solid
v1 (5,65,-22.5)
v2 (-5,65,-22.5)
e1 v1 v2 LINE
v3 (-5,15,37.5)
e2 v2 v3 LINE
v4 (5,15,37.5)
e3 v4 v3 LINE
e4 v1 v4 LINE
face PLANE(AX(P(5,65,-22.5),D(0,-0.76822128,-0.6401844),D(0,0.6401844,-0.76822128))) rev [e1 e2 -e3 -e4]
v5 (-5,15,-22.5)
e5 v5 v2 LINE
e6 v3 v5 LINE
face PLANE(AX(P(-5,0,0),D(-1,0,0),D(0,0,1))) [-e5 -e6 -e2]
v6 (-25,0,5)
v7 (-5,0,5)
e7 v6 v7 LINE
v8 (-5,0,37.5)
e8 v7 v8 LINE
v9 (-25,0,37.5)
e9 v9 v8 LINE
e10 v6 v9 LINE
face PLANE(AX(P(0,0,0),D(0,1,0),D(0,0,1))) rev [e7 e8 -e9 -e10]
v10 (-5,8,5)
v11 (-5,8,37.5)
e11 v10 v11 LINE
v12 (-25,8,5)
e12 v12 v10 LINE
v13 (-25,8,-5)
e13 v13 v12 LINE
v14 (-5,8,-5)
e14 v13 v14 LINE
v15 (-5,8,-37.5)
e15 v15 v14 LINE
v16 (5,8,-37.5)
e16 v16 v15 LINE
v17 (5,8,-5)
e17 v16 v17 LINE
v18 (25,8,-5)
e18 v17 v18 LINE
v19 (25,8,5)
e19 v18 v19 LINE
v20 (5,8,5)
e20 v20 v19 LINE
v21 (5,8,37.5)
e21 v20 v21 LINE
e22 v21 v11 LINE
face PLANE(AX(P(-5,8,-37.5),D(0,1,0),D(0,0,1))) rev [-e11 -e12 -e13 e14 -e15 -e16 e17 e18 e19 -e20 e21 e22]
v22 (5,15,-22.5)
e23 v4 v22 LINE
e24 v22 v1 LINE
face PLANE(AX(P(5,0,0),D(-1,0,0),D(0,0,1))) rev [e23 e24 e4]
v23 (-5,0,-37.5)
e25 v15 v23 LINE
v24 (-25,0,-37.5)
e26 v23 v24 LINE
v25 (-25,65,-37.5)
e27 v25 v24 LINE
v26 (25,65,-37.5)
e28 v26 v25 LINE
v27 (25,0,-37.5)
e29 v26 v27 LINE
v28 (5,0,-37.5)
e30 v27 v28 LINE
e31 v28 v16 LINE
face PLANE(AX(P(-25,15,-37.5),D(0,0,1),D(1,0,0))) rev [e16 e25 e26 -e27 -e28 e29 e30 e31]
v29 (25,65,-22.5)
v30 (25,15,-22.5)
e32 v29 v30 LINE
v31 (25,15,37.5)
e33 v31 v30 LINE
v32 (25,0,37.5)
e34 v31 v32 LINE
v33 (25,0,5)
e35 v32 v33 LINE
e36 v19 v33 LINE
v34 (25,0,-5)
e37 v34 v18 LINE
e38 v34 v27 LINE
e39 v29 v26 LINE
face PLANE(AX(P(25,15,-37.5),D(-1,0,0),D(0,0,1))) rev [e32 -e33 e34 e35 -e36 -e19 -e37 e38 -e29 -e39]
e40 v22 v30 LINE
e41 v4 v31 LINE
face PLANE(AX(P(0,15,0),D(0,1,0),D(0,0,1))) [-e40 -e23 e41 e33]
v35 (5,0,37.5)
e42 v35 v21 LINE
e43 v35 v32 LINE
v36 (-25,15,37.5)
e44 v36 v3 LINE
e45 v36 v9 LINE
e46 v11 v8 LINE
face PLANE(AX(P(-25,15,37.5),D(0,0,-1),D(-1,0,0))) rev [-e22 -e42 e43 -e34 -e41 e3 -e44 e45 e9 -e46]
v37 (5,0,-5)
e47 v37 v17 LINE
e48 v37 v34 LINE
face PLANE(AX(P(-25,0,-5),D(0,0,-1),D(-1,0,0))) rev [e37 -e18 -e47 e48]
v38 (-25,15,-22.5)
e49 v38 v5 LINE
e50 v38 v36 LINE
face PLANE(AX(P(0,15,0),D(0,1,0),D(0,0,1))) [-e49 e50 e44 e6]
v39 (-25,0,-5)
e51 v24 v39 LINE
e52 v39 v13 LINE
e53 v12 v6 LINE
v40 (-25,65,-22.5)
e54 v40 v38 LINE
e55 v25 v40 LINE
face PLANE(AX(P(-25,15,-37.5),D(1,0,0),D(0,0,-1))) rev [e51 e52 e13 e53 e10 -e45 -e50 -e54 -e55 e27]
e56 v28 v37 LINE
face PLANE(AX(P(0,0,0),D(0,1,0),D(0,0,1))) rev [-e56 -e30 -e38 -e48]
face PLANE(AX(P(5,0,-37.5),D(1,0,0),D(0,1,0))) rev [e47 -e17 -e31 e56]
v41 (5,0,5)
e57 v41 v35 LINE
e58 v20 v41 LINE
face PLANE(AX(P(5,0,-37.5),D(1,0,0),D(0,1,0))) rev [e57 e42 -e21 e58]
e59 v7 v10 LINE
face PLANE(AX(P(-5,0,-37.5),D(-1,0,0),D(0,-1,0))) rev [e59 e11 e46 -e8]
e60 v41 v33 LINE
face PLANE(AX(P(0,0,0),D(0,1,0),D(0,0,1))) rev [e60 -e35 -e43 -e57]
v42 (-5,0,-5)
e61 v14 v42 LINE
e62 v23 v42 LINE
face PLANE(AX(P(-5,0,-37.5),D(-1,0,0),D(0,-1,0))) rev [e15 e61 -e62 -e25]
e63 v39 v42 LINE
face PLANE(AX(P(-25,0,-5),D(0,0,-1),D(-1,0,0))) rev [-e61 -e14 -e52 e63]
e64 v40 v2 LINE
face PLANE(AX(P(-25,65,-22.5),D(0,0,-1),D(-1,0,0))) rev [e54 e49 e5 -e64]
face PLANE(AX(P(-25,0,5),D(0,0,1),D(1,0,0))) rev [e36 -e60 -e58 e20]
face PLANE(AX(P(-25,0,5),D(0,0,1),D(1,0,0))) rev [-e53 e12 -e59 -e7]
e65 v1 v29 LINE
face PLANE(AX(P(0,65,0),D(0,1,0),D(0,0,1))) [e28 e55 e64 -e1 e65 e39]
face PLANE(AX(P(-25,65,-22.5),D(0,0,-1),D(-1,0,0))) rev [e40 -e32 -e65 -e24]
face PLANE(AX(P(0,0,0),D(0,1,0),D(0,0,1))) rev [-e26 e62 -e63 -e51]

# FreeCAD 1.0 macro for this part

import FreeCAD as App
import Part
import Sketcher

doc = App.newDocument("Part")
body = doc.addObject("PartDesign::Body", "Body")

# Sketch on XZ plane
sketch1 = body.newObject("Sketcher::SketchObject", "Sketch")
sketch1.AttachmentSupport = (doc.getObject("XZ_Plane"), [""])
sketch1.MapMode = "FlatFace"
sketch1.addGeometry(Part.LineSegment(App.Vector(-25, -38, 0), App.Vector(-25, 38, 0)), False)
sketch1.addGeometry(Part.LineSegment(App.Vector(-25, 38, 0), App.Vector(25, 38, 0)), False)
sketch1.addGeometry(Part.LineSegment(App.Vector(25, 38, 0), App.Vector(25, -38, 0)), False)
sketch1.addGeometry(Part.LineSegment(App.Vector(25, -38, 0), App.Vector(-25, -38, 0)), False)
sketch1.addConstraint(Sketcher.Constraint("Coincident", 0, 2, 1, 1))
sketch1.addConstraint(Sketcher.Constraint("Coincident", 1, 2, 2, 1))
sketch1.addConstraint(Sketcher.Constraint("Coincident", 2, 2, 3, 1))
sketch1.addConstraint(Sketcher.Constraint("Coincident", 3, 2, 0, 1))
sketch1.addConstraint(Sketcher.Constraint("Vertical", 0))
sketch1.addConstraint(Sketcher.Constraint("Horizontal", 1))
sketch1.addConstraint(Sketcher.Constraint("Vertical", 2))
sketch1.addConstraint(Sketcher.Constraint("Horizontal", 3))
sketch1.addConstraint(Sketcher.Constraint("Symmetric", 0, 2, 2, 2, -1, 1))
sketch1.addConstraint(Sketcher.Constraint("DistanceX", 1, 1, 1, 2, 50.0))
sketch1.addConstraint(Sketcher.Constraint("DistanceY", 0, 1, 0, 2, 75.0))
pad1 = body.newObject("PartDesign::Pad", "Pad")
pad1.Profile = sketch1
pad1.Length = 15
pad1.Reversed = True

# Sketch on XZ plane
sketch2 = body.newObject("Sketcher::SketchObject", "Sketch001")
sketch2.AttachmentSupport = (doc.getObject("XZ_Plane"), [""])
sketch2.MapMode = "FlatFace"
sketch2.AttachmentOffset = App.Placement(App.Vector(0, 0, -15), App.Rotation())
sketch2.addGeometry(Part.LineSegment(App.Vector(-25, -38, 0), App.Vector(-25, -22, 0)), False)
sketch2.addGeometry(Part.LineSegment(App.Vector(-25, -22, 0), App.Vector(25, -22, 0)), False)
sketch2.addGeometry(Part.LineSegment(App.Vector(25, -22, 0), App.Vector(25, -38, 0)), False)
sketch2.addGeometry(Part.LineSegment(App.Vector(25, -38, 0), App.Vector(-25, -38, 0)), False)
sketch2.addConstraint(Sketcher.Constraint("Coincident", 0, 2, 1, 1))
sketch2.addConstraint(Sketcher.Constraint("Coincident", 1, 2, 2, 1))
sketch2.addConstraint(Sketcher.Constraint("Coincident", 2, 2, 3, 1))
sketch2.addConstraint(Sketcher.Constraint("Coincident", 3, 2, 0, 1))
sketch2.addConstraint(Sketcher.Constraint("Vertical", 0))
sketch2.addConstraint(Sketcher.Constraint("Horizontal", 1))
sketch2.addConstraint(Sketcher.Constraint("Vertical", 2))
sketch2.addConstraint(Sketcher.Constraint("Horizontal", 3))
sketch2.addConstraint(Sketcher.Constraint("DistanceX", 1, 1, 1, 2, 50.0))
sketch2.addConstraint(Sketcher.Constraint("DistanceY", 0, 1, 0, 2, 15.0))
sketch2.addConstraint(Sketcher.Constraint("DistanceX", 0, 2, -1, 1, 25.0))
sketch2.addConstraint(Sketcher.Constraint("DistanceY", 0, 2, -1, 1, 22.5))
pad2 = body.newObject("PartDesign::Pad", "Pad001")
pad2.Profile = sketch2
pad2.Length = 50
pad2.Reversed = True

# Sketch on YZ plane
sketch3 = body.newObject("Sketcher::SketchObject", "Sketch002")
sketch3.AttachmentSupport = (doc.getObject("YZ_Plane"), [""])
sketch3.MapMode = "FlatFace"
sketch3.addGeometry(Part.LineSegment(App.Vector(65, -22, 0), App.Vector(15, 38, 0)), False)
sketch3.addGeometry(Part.LineSegment(App.Vector(15, 38, 0), App.Vector(15, -22, 0)), False)
sketch3.addGeometry(Part.LineSegment(App.Vector(15, -22, 0), App.Vector(65, -22, 0)), False)
sketch3.addConstraint(Sketcher.Constraint("Coincident", 0, 2, 1, 1))
sketch3.addConstraint(Sketcher.Constraint("Coincident", 1, 2, 2, 1))
sketch3.addConstraint(Sketcher.Constraint("Coincident", 2, 2, 0, 1))
sketch3.addConstraint(Sketcher.Constraint("Vertical", 1))
sketch3.addConstraint(Sketcher.Constraint("Horizontal", 2))
sketch3.addConstraint(Sketcher.Constraint("DistanceX", 2, 1, 2, 2, 50.0))
sketch3.addConstraint(Sketcher.Constraint("DistanceY", 1, 2, 1, 1, 60.0))
sketch3.addConstraint(Sketcher.Constraint("DistanceX", -1, 1, 0, 2, 15.0))
sketch3.addConstraint(Sketcher.Constraint("DistanceY", -1, 1, 0, 2, 37.5))
pad3 = body.newObject("PartDesign::Pad", "Pad002")
pad3.Profile = sketch3
pad3.Length = 10
pad3.Midplane = True

# Sketch on XY plane
sketch4 = body.newObject("Sketcher::SketchObject", "Sketch003")
sketch4.AttachmentSupport = (doc.getObject("XY_Plane"), [""])
sketch4.MapMode = "FlatFace"
sketch4.AttachmentOffset = App.Placement(App.Vector(0, 0, 37.5), App.Rotation())
sketch4.addGeometry(Part.LineSegment(App.Vector(-5, 8, 0), App.Vector(-5, 0, 0)), False)
sketch4.addGeometry(Part.LineSegment(App.Vector(-5, 0, 0), App.Vector(5, 0, 0)), False)
sketch4.addGeometry(Part.LineSegment(App.Vector(5, 0, 0), App.Vector(5, 8, 0)), False)
sketch4.addGeometry(Part.LineSegment(App.Vector(5, 8, 0), App.Vector(-5, 8, 0)), False)
sketch4.addConstraint(Sketcher.Constraint("Coincident", 0, 2, 1, 1))
sketch4.addConstraint(Sketcher.Constraint("Coincident", 1, 2, 2, 1))
sketch4.addConstraint(Sketcher.Constraint("Coincident", 2, 2, 3, 1))
sketch4.addConstraint(Sketcher.Constraint("Coincident", 3, 2, 0, 1))
sketch4.addConstraint(Sketcher.Constraint("Vertical", 0))
sketch4.addConstraint(Sketcher.Constraint("Horizontal", 1))
sketch4.addConstraint(Sketcher.Constraint("Vertical", 2))
sketch4.addConstraint(Sketcher.Constraint("Horizontal", 3))
sketch4.addConstraint(Sketcher.Constraint("Symmetric", 0, 2, 1, 2, -1, 1))
sketch4.addConstraint(Sketcher.Constraint("DistanceX", 1, 1, 1, 2, 10.0))
sketch4.addConstraint(Sketcher.Constraint("DistanceY", 0, 2, 0, 1, 8.0))
pocket1 = body.newObject("PartDesign::Pocket", "Pocket")
pocket1.Profile = sketch4
pocket1.Type = "ThroughAll"

# Sketch on YZ plane
sketch5 = body.newObject("Sketcher::SketchObject", "Sketch004")
sketch5.AttachmentSupport = (doc.getObject("YZ_Plane"), [""])
sketch5.MapMode = "FlatFace"
sketch5.AttachmentOffset = App.Placement(App.Vector(0, 0, 25), App.Rotation())
sketch5.addGeometry(Part.LineSegment(App.Vector(8, 5, 0), App.Vector(0, 5, 0)), False)
sketch5.addGeometry(Part.LineSegment(App.Vector(0, 5, 0), App.Vector(0, -5, 0)), False)
sketch5.addGeometry(Part.LineSegment(App.Vector(0, -5, 0), App.Vector(8, -5, 0)), False)
sketch5.addGeometry(Part.LineSegment(App.Vector(8, -5, 0), App.Vector(8, 5, 0)), False)
sketch5.addConstraint(Sketcher.Constraint("Coincident", 0, 2, 1, 1))
sketch5.addConstraint(Sketcher.Constraint("Coincident", 1, 2, 2, 1))
sketch5.addConstraint(Sketcher.Constraint("Coincident", 2, 2, 3, 1))
sketch5.addConstraint(Sketcher.Constraint("Coincident", 3, 2, 0, 1))
sketch5.addConstraint(Sketcher.Constraint("Horizontal", 0))
sketch5.addConstraint(Sketcher.Constraint("Vertical", 1))
sketch5.addConstraint(Sketcher.Constraint("Horizontal", 2))
sketch5.addConstraint(Sketcher.Constraint("Vertical", 3))
sketch5.addConstraint(Sketcher.Constraint("Symmetric", 0, 2, 1, 2, -1, 1))
sketch5.addConstraint(Sketcher.Constraint("DistanceX", 0, 2, 0, 1, 8.0))
sketch5.addConstraint(Sketcher.Constraint("DistanceY", 1, 2, 1, 1, 10.0))
pocket2 = body.newObject("PartDesign::Pocket", "Pocket001")
pocket2.Profile = sketch5
pocket2.Type = "ThroughAll"

doc.recompute()
